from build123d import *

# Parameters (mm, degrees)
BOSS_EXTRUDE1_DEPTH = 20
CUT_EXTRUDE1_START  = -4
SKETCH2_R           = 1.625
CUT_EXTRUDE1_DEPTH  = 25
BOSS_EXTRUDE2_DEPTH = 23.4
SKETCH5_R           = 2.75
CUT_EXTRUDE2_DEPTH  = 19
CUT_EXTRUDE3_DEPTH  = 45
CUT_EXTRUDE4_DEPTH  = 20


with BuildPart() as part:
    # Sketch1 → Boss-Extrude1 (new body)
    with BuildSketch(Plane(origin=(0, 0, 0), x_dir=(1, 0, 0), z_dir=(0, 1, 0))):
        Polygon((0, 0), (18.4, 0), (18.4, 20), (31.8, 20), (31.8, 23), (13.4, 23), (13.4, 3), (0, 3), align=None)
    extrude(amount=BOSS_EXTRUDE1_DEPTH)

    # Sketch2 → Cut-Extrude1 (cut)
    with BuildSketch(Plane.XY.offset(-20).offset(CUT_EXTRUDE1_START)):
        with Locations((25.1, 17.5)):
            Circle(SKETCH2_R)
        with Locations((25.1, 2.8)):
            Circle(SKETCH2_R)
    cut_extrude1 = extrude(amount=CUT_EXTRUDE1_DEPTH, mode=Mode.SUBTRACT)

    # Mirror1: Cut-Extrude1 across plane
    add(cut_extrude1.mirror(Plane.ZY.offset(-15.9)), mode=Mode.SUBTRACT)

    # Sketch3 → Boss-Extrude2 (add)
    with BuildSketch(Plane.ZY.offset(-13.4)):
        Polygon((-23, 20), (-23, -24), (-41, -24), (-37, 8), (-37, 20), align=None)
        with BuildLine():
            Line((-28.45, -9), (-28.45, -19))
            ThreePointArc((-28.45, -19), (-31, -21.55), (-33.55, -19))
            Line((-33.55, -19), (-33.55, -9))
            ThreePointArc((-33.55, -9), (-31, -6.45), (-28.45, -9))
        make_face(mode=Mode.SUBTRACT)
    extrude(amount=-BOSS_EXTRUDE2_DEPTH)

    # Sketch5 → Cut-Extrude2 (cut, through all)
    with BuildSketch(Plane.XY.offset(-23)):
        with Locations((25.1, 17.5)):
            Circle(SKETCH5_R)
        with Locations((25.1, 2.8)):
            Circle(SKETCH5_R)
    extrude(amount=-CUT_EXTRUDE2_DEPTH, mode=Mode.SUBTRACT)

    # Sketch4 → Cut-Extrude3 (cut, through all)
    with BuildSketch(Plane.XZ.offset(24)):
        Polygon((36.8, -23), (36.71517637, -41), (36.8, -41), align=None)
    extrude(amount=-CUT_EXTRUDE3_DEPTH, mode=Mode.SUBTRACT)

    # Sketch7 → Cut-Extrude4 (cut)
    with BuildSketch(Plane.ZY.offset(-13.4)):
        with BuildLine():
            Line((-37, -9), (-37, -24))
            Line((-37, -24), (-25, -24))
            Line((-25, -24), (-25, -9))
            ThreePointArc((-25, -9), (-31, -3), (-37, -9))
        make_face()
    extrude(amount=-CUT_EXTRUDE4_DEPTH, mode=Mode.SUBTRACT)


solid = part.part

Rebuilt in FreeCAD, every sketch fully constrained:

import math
import FreeCAD as App
import Part
import Sketcher
from FreeCAD import Vector
Q = App.Units.Quantity

doc = App.newDocument("Part")
body = doc.addObject("PartDesign::Body", "Body")

# Sketch on XZ plane
sketch1 = body.newObject("Sketcher::SketchObject", "Sketch")
sketch1.AttachmentSupport = (doc.getObject("XZ_Plane"), [""])
sketch1.MapMode = "FlatFace"
sketch1.addGeometry([
    Part.LineSegment(Vector(0, 0, 0), Vector(18.4, 0, 0)),  # 0
    Part.LineSegment(Vector(18.4, 0, 0), Vector(18.4, -20, 0)),  # 1
    Part.LineSegment(Vector(18.4, -20, 0), Vector(31.8, -20, 0)),  # 2
    Part.LineSegment(Vector(31.8, -20, 0), Vector(31.8, -23, 0)),  # 3
    Part.LineSegment(Vector(31.8, -23, 0), Vector(13.4, -23, 0)),  # 4
    Part.LineSegment(Vector(13.4, -23, 0), Vector(13.4, -3, 0)),  # 5
    Part.LineSegment(Vector(13.4, -3, 0), Vector(0, -3, 0)),  # 6
    Part.LineSegment(Vector(0, -3, 0), Vector(0, 0, 0)),  # 7
], False)
sketch1.addConstraint([
    Sketcher.Constraint("Coincident", 0, 2, 1, 1),
    Sketcher.Constraint("Coincident", 1, 2, 2, 1),
    Sketcher.Constraint("Coincident", 2, 2, 3, 1),
    Sketcher.Constraint("Coincident", 3, 2, 4, 1),
    Sketcher.Constraint("Coincident", 4, 2, 5, 1),
    Sketcher.Constraint("Coincident", 5, 2, 6, 1),
    Sketcher.Constraint("Coincident", 6, 2, 7, 1),
    Sketcher.Constraint("Coincident", 7, 2, 0, 1),
    Sketcher.Constraint("Horizontal", 0),
    Sketcher.Constraint("Vertical", 1),
    Sketcher.Constraint("Horizontal", 2),
    Sketcher.Constraint("Vertical", 3),
    Sketcher.Constraint("Horizontal", 4),
    Sketcher.Constraint("Vertical", 5),
    Sketcher.Constraint("Horizontal", 6),
    Sketcher.Constraint("Vertical", 7),
    Sketcher.Constraint("Coincident", 7, 2, -1, 1),
    Sketcher.Constraint("Equal", 0, 4),
    Sketcher.Constraint("Equal", 1, 5),
    Sketcher.Constraint("DistanceY", 1, 2, 1, 1, Q("20 mm")),
    Sketcher.Constraint("DistanceY", 3, 2, 3, 1, Q("3 mm")),
    Sketcher.Constraint("DistanceX", 0, 1, 0, 2, Q("18.4 mm")),
    Sketcher.Constraint("DistanceX", 2, 1, 2, 2, Q("13.4 mm")),
])
pad1 = body.newObject("PartDesign::Pad", "Pad")
pad1.Profile = sketch1
pad1.Length = 20
pad1.Reversed = True

# Sketch on XY plane
sketch2 = body.newObject("Sketcher::SketchObject", "Sketch001")
sketch2.AttachmentSupport = (doc.getObject("XY_Plane"), [""])
sketch2.MapMode = "FlatFace"
sketch2.AttachmentOffset = App.Placement(Vector(0, 0, -24), App.Rotation())
sketch2.addGeometry([
    Part.Circle(Vector(25.1, 17.5, 0), Vector(0, 0, 1), 1.6),
    Part.Circle(Vector(25.1, 2.8, 0), Vector(0, 0, 1), 1.6),
], False)
sketch2.addConstraint([
    Sketcher.Constraint("Equal", 0, 1),
    Sketcher.Constraint("Vertical", 0, 3, 1, 3),
    Sketcher.Constraint("Diameter", 0, Q("3.25 mm")),
    Sketcher.Constraint("DistanceX", -1, 1, 0, 3, Q("25.1 mm")),
    Sketcher.Constraint("DistanceY", -1, 1, 0, 3, Q("17.5 mm")),
    Sketcher.Constraint("DistanceY", -1, 1, 1, 3, Q("2.8 mm")),
])
pocket1 = body.newObject("PartDesign::Pocket", "Pocket")
pocket1.Profile = sketch2
pocket1.Length = 25
pocket1.Reversed = True
doc.recompute()

datumplane = body.newObject("PartDesign::Plane", "DatumPlane")
datumplane.AttachmentSupport = (doc.getObject("YZ_Plane"), [""])
datumplane.MapMode = "FlatFace"
datumplane.AttachmentOffset = App.Placement(Vector(0, 0, 15.9), App.Rotation())
mirrored = body.newObject("PartDesign::Mirrored", "Mirrored")
mirrored.Originals = [pocket1]
mirrored.MirrorPlane = (datumplane, [""])
body.Tip = mirrored

# Sketch on YZ plane
sketch3 = body.newObject("Sketcher::SketchObject", "Sketch002")
sketch3.AttachmentSupport = (doc.getObject("YZ_Plane"), [""])
sketch3.MapMode = "FlatFace"
sketch3.AttachmentOffset = App.Placement(Vector(0, 0, 13.4), App.Rotation())
sketch3.addGeometry([
    Part.LineSegment(Vector(-24, -23, 0), Vector(20, -23, 0)),  # 0
    Part.LineSegment(Vector(20, -23, 0), Vector(20, -37, 0)),  # 1
    Part.LineSegment(Vector(20, -37, 0), Vector(8, -37, 0)),  # 2
    Part.LineSegment(Vector(8, -37, 0), Vector(-24, -41, 0)),  # 3
    Part.LineSegment(Vector(-24, -41, 0), Vector(-24, -23, 0)),  # 4
    Part.LineSegment(Vector(-9, -28.4, 0), Vector(-19, -28.4, 0)),  # 5
    Part.ArcOfCircle(Part.Circle(Vector(-19, -31, 0), Vector(0, 0, 1), 2.5), math.radians(90), math.radians(270)),  # 6
    Part.LineSegment(Vector(-19, -33.5, 0), Vector(-9, -33.5, 0)),  # 7
    Part.ArcOfCircle(Part.Circle(Vector(-9, -31, 0), Vector(0, 0, 1), 2.5), math.radians(-90), math.radians(90)),  # 8
], False)
sketch3.addConstraint([
    Sketcher.Constraint("Coincident", 0, 2, 1, 1),
    Sketcher.Constraint("Coincident", 1, 2, 2, 1),
    Sketcher.Constraint("Coincident", 2, 2, 3, 1),
    Sketcher.Constraint("Coincident", 3, 2, 4, 1),
    Sketcher.Constraint("Coincident", 4, 2, 0, 1),
    Sketcher.Constraint("Tangent", 5, 2, 6, 1),
    Sketcher.Constraint("Tangent", 6, 2, 7, 1),
    Sketcher.Constraint("Tangent", 7, 2, 8, 1),
    Sketcher.Constraint("Tangent", 8, 2, 5, 1),
    Sketcher.Constraint("Horizontal", 0),
    Sketcher.Constraint("Vertical", 1),
    Sketcher.Constraint("Horizontal", 2),
    Sketcher.Constraint("Vertical", 4),
    Sketcher.Constraint("Horizontal", 5),
    Sketcher.Constraint("Horizontal", 7),
    Sketcher.Constraint("DistanceX", 0, 1, 0, 2, Q("44 mm")),
    Sketcher.Constraint("DistanceX", 2, 2, 2, 1, Q("12 mm")),
    Sketcher.Constraint("DistanceX", 5, 2, 5, 1, Q("10 mm")),
    Sketcher.Constraint("DistanceY", 1, 2, 1, 1, Q("14 mm")),
    Sketcher.Constraint("DistanceY", 4, 1, 4, 2, Q("18 mm")),
    Sketcher.Constraint("Radius", 6, Q("2.55 mm")),
    Sketcher.Constraint("DistanceX", 6, 3, -1, 1, Q("19 mm")),
    Sketcher.Constraint("DistanceY", 6, 3, -1, 1, Q("31 mm")),
    Sketcher.Constraint("DistanceX", -1, 1, 0, 2, Q("20 mm")),
    Sketcher.Constraint("DistanceY", 0, 2, -1, 1, Q("23 mm")),
])
pad2 = body.newObject("PartDesign::Pad", "Pad001")
pad2.Profile = sketch3
pad2.Length = 23.4

# Sketch on XY plane
sketch4 = body.newObject("Sketcher::SketchObject", "Sketch003")
sketch4.AttachmentSupport = (doc.getObject("XY_Plane"), [""])
sketch4.MapMode = "FlatFace"
sketch4.AttachmentOffset = App.Placement(Vector(0, 0, -23), App.Rotation())
sketch4.addGeometry([
    Part.Circle(Vector(25.1, 17.5, 0), Vector(0, 0, 1), 2.8),
    Part.Circle(Vector(25.1, 2.8, 0), Vector(0, 0, 1), 2.8),
], False)
sketch4.addConstraint([
    Sketcher.Constraint("Equal", 0, 1),
    Sketcher.Constraint("Vertical", 0, 3, 1, 3),
    Sketcher.Constraint("Diameter", 0, Q("5.5 mm")),
    Sketcher.Constraint("DistanceX", -1, 1, 0, 3, Q("25.1 mm")),
    Sketcher.Constraint("DistanceY", -1, 1, 0, 3, Q("17.5 mm")),
    Sketcher.Constraint("DistanceY", -1, 1, 1, 3, Q("2.8 mm")),
])
pocket2 = body.newObject("PartDesign::Pocket", "Pocket001")
pocket2.Profile = sketch4
pocket2.Type = "ThroughAll"

# Sketch on XZ plane
sketch5 = body.newObject("Sketcher::SketchObject", "Sketch004")
sketch5.AttachmentSupport = (doc.getObject("XZ_Plane"), [""])
sketch5.MapMode = "FlatFace"
sketch5.AttachmentOffset = App.Placement(Vector(0, 0, 24), App.Rotation())
sketch5.addGeometry([
    Part.LineSegment(Vector(36.8, -23, 0), Vector(36.72, -41, 0)),
    Part.LineSegment(Vector(36.72, -41, 0), Vector(36.8, -41, 0)),
    Part.LineSegment(Vector(36.8, -41, 0), Vector(36.8, -23, 0)),
], False)
sketch5.addConstraint([
    Sketcher.Constraint("Coincident", 0, 2, 1, 1),
    Sketcher.Constraint("Coincident", 1, 2, 2, 1),
    Sketcher.Constraint("Coincident", 2, 2, 0, 1),
    Sketcher.Constraint("Horizontal", 1),
    Sketcher.Constraint("Vertical", 2),
    Sketcher.Constraint("DistanceY", 2, 1, 2, 2, Q("18 mm")),
    Sketcher.Constraint("DistanceY", 0, 2, -1, 1, Q("41 mm")),
    Sketcher.Constraint("DistanceX", -1, 1, 1, 2, Q("36.8 mm")),
    Sketcher.Constraint("Angle", 0, Q("-90.27 deg")),
])
pocket3 = body.newObject("PartDesign::Pocket", "Pocket002")
pocket3.Profile = sketch5
pocket3.Type = "ThroughAll"

# Sketch on YZ plane
sketch6 = body.newObject("Sketcher::SketchObject", "Sketch005")
sketch6.AttachmentSupport = (doc.getObject("YZ_Plane"), [""])
sketch6.MapMode = "FlatFace"
sketch6.AttachmentOffset = App.Placement(Vector(0, 0, 13.4), App.Rotation())
sketch6.addGeometry([
    Part.LineSegment(Vector(-9, -37, 0), Vector(-24, -37, 0)),
    Part.LineSegment(Vector(-24, -37, 0), Vector(-24, -25, 0)),
    Part.LineSegment(Vector(-24, -25, 0), Vector(-9, -25, 0)),
    Part.ArcOfCircle(Part.Circle(Vector(-9, -31, 0), Vector(0, 0, 1), 6), math.radians(-90), math.radians(90)),
], False)
sketch6.addConstraint([
    Sketcher.Constraint("Coincident", 0, 2, 1, 1),
    Sketcher.Constraint("Coincident", 1, 2, 2, 1),
    Sketcher.Constraint("Tangent", 2, 2, 3, 2),
    Sketcher.Constraint("Tangent", 3, 1, 0, 1),
    Sketcher.Constraint("Horizontal", 0),
    Sketcher.Constraint("Vertical", 1),
    Sketcher.Constraint("Horizontal", 2),
    Sketcher.Constraint("Radius", 3, Q("6 mm")),
    Sketcher.Constraint("DistanceX", 0, 2, 0, 1, Q("15 mm")),
    Sketcher.Constraint("DistanceX", 3, 3, -1, 1, Q("9 mm")),
    Sketcher.Constraint("DistanceY", 3, 3, -1, 1, Q("31 mm")),
])
pocket4 = body.newObject("PartDesign::Pocket", "Pocket003")
pocket4.Profile = sketch6
pocket4.Length = 20
pocket4.Reversed = True

doc.recompute()
